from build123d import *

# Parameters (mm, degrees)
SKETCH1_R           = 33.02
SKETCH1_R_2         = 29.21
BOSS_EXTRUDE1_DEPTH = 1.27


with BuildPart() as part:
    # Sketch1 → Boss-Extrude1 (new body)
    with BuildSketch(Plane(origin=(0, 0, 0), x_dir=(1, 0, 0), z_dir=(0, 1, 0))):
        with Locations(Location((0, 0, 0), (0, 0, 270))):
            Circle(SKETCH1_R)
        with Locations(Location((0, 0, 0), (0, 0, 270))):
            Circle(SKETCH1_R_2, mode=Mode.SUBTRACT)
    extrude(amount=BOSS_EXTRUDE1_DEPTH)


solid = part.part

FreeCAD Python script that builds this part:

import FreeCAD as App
import Part
import Sketcher
from FreeCAD import Vector
Q = App.Units.Quantity

doc = App.newDocument("Part")
body = doc.addObject("PartDesign::Body", "Body")

# Sketch on XZ plane
sketch1 = body.newObject("Sketcher::SketchObject", "Sketch")
sketch1.AttachmentSupport = (doc.getObject("XZ_Plane"), [""])
sketch1.MapMode = "FlatFace"
sketch1.addGeometry([
    Part.Circle(Vector(0, 0, 0), Vector(0, 0, 1), 33),
    Part.Circle(Vector(0, 0, 0), Vector(0, 0, 1), 29),
], False)
sketch1.addConstraint([
    Sketcher.Constraint("Coincident", 0, 3, -1, 1),
    Sketcher.Constraint("Coincident", 1, 3, -1, 1),
    Sketcher.Constraint("Diameter", 0, Q("2.6 in")),
    Sketcher.Constraint("Diameter", 1, Q("2.3 in")),
])
pad1 = body.newObject("PartDesign::Pad", "Pad")
pad1.Profile = sketch1
pad1.Length = Q("0.05 in")
pad1.Reversed = True

doc.recompute()
